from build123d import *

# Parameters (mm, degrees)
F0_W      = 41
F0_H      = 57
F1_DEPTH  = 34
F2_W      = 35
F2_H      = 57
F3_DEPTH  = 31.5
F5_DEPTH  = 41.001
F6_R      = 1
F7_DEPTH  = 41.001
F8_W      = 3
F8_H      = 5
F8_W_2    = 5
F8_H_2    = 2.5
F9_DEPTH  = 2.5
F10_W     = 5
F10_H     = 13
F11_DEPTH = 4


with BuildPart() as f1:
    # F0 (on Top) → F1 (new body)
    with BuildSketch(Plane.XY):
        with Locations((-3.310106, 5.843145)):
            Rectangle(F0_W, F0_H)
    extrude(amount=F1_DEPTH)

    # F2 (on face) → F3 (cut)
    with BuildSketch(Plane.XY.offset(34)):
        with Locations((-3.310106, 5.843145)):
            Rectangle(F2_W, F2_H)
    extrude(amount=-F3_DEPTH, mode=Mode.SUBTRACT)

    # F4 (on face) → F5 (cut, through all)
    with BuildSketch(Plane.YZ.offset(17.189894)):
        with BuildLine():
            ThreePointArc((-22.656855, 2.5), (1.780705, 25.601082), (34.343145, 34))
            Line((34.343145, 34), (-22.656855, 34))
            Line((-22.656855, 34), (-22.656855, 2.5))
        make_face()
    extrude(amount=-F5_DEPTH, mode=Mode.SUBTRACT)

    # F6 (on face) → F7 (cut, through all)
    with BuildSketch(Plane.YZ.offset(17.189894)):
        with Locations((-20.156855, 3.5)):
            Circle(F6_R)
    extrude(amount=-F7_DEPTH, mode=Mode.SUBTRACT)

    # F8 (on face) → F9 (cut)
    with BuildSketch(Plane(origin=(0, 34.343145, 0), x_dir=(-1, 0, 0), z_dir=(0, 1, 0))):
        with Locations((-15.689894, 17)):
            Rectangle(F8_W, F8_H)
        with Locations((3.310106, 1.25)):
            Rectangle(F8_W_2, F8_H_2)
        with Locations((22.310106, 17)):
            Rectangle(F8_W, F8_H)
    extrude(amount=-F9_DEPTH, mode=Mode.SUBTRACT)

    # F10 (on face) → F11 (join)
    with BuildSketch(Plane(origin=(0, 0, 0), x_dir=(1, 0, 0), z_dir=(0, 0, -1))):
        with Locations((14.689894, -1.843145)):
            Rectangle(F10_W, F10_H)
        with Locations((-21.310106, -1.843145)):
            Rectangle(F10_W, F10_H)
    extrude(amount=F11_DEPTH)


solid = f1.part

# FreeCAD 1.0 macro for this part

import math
import FreeCAD as App
import Part
import Sketcher
from FreeCAD import Vector

doc = App.newDocument("Part")
body = doc.addObject("PartDesign::Body", "Body")

# Sketch on XY plane
sketch1 = body.newObject("Sketcher::SketchObject", "Sketch")
sketch1.AttachmentSupport = (doc.getObject("XY_Plane"), [""])
sketch1.MapMode = "FlatFace"
sketch1.addGeometry([
    Part.LineSegment(Vector(-24, 34, 0), Vector(-24, -23, 0)),
    Part.LineSegment(Vector(-24, -23, 0), Vector(17, -23, 0)),
    Part.LineSegment(Vector(17, -23, 0), Vector(17, 34, 0)),
    Part.LineSegment(Vector(17, 34, 0), Vector(-24, 34, 0)),
], False)
sketch1.addConstraint([
    Sketcher.Constraint("Coincident", 0, 2, 1, 1),
    Sketcher.Constraint("Coincident", 1, 2, 2, 1),
    Sketcher.Constraint("Coincident", 2, 2, 3, 1),
    Sketcher.Constraint("Coincident", 3, 2, 0, 1),
    Sketcher.Constraint("Vertical", 0),
    Sketcher.Constraint("Horizontal", 1),
    Sketcher.Constraint("Vertical", 2),
    Sketcher.Constraint("Horizontal", 3),
    Sketcher.Constraint("DistanceX", 1, 1, 1, 2, 41.0),
    Sketcher.Constraint("DistanceY", 0, 2, 0, 1, 57.0),
    Sketcher.Constraint("DistanceX", 0, 2, -1, 1, 23.810106),
    Sketcher.Constraint("DistanceY", 0, 2, -1, 1, 22.656855),
])
pad1 = body.newObject("PartDesign::Pad", "Pad")
pad1.Profile = sketch1
pad1.Length = 34

# Sketch on XY plane
sketch2 = body.newObject("Sketcher::SketchObject", "Sketch001")
sketch2.AttachmentSupport = (doc.getObject("XY_Plane"), [""])
sketch2.MapMode = "FlatFace"
sketch2.AttachmentOffset = App.Placement(Vector(0, 0, 34), App.Rotation())
sketch2.addGeometry([
    Part.LineSegment(Vector(-21, 34, 0), Vector(-21, -23, 0)),
    Part.LineSegment(Vector(-21, -23, 0), Vector(14, -23, 0)),
    Part.LineSegment(Vector(14, -23, 0), Vector(14, 34, 0)),
    Part.LineSegment(Vector(14, 34, 0), Vector(-21, 34, 0)),
], False)
sketch2.addConstraint([
    Sketcher.Constraint("Coincident", 0, 2, 1, 1),
    Sketcher.Constraint("Coincident", 1, 2, 2, 1),
    Sketcher.Constraint("Coincident", 2, 2, 3, 1),
    Sketcher.Constraint("Coincident", 3, 2, 0, 1),
    Sketcher.Constraint("Vertical", 0),
    Sketcher.Constraint("Horizontal", 1),
    Sketcher.Constraint("Vertical", 2),
    Sketcher.Constraint("Horizontal", 3),
    Sketcher.Constraint("DistanceX", 1, 1, 1, 2, 35.0),
    Sketcher.Constraint("DistanceY", 0, 2, 0, 1, 57.0),
    Sketcher.Constraint("DistanceX", 0, 2, -1, 1, 20.810106),
    Sketcher.Constraint("DistanceY", 0, 2, -1, 1, 22.656855),
])
pocket1 = body.newObject("PartDesign::Pocket", "Pocket")
pocket1.Profile = sketch2
pocket1.Length = 31.5

# Sketch on YZ plane
sketch3 = body.newObject("Sketcher::SketchObject", "Sketch002")
sketch3.AttachmentSupport = (doc.getObject("YZ_Plane"), [""])
sketch3.MapMode = "FlatFace"
sketch3.AttachmentOffset = App.Placement(Vector(0, 0, 17.189894), App.Rotation())
sketch3.addGeometry([
    Part.ArcOfCircle(Part.Circle(Vector(34, -33, 0), Vector(0, 0, 1), 67), math.radians(90), math.radians(148)),
    Part.LineSegment(Vector(34, 34, 0), Vector(-23, 34, 0)),
    Part.LineSegment(Vector(-23, 34, 0), Vector(-23, 2, 0)),
], False)
sketch3.addConstraint([
    Sketcher.Constraint("Tangent", 0, 1, 1, 1),
    Sketcher.Constraint("Coincident", 1, 2, 2, 1),
    Sketcher.Constraint("Coincident", 2, 2, 0, 2),
    Sketcher.Constraint("Horizontal", 1),
    Sketcher.Constraint("Vertical", 2),
    Sketcher.Constraint("DistanceX", 1, 2, 1, 1, 57.0),
    Sketcher.Constraint("DistanceY", 2, 2, 2, 1, 31.5),
    Sketcher.Constraint("DistanceY", -1, 1, 0, 1, 34.0),
    Sketcher.Constraint("DistanceX", -1, 1, 0, 3, 34.343145),
])
pocket2 = body.newObject("PartDesign::Pocket", "Pocket001")
pocket2.Profile = sketch3
pocket2.Type = "ThroughAll"

# Sketch on YZ plane
sketch4 = body.newObject("Sketcher::SketchObject", "Sketch003")
sketch4.AttachmentSupport = (doc.getObject("YZ_Plane"), [""])
sketch4.MapMode = "FlatFace"
sketch4.AttachmentOffset = App.Placement(Vector(0, 0, 17.189894), App.Rotation())
sketch4.addGeometry(Part.Circle(Vector(-20.2, 3.5, 0), Vector(0, 0, 1), 1), False)
sketch4.addConstraint([
    Sketcher.Constraint("Diameter", 0, 2.0),
    Sketcher.Constraint("DistanceY", -1, 1, 0, 3, 3.5),
    Sketcher.Constraint("DistanceX", 0, 3, -1, 1, 20.156855),
])
pocket3 = body.newObject("PartDesign::Pocket", "Pocket002")
pocket3.Profile = sketch4
pocket3.Type = "ThroughAll"

# Sketch on XZ plane
sketch5 = body.newObject("Sketcher::SketchObject", "Sketch004")
sketch5.AttachmentSupport = (doc.getObject("XZ_Plane"), [""])
sketch5.MapMode = "FlatFace"
sketch5.AttachmentOffset = App.Placement(Vector(0, 0, -34.343145), App.Rotation())
sketch5.addGeometry([
    Part.LineSegment(Vector(17.2, 19.5, 0), Vector(17.2, 14.5, 0)),  # 0
    Part.LineSegment(Vector(17.2, 14.5, 0), Vector(14.2, 14.5, 0)),  # 1
    Part.LineSegment(Vector(14.2, 14.5, 0), Vector(14.2, 19.5, 0)),  # 2
    Part.LineSegment(Vector(14.2, 19.5, 0), Vector(17.2, 19.5, 0)),  # 3
    Part.LineSegment(Vector(-0.8, 2.5, 0), Vector(-0.8, 0, 0)),  # 4
    Part.LineSegment(Vector(-0.8, 0, 0), Vector(-5.8, 0, 0)),  # 5
    Part.LineSegment(Vector(-5.8, 0, 0), Vector(-5.8, 2.5, 0)),  # 6
    Part.LineSegment(Vector(-5.8, 2.5, 0), Vector(-0.8, 2.5, 0)),  # 7
    Part.LineSegment(Vector(-20.8, 19.5, 0), Vector(-20.8, 14.5, 0)),  # 8
    Part.LineSegment(Vector(-20.8, 14.5, 0), Vector(-23.8, 14.5, 0)),  # 9
    Part.LineSegment(Vector(-23.8, 14.5, 0), Vector(-23.8, 19.5, 0)),  # 10
    Part.LineSegment(Vector(-23.8, 19.5, 0), Vector(-20.8, 19.5, 0)),  # 11
], False)
sketch5.addConstraint([
    Sketcher.Constraint("Coincident", 0, 2, 1, 1),
    Sketcher.Constraint("Coincident", 1, 2, 2, 1),
    Sketcher.Constraint("Coincident", 2, 2, 3, 1),
    Sketcher.Constraint("Coincident", 3, 2, 0, 1),
    Sketcher.Constraint("Coincident", 4, 2, 5, 1),
    Sketcher.Constraint("Coincident", 5, 2, 6, 1),
    Sketcher.Constraint("Coincident", 6, 2, 7, 1),
    Sketcher.Constraint("Coincident", 7, 2, 4, 1),
    Sketcher.Constraint("Coincident", 8, 2, 9, 1),
    Sketcher.Constraint("Coincident", 9, 2, 10, 1),
    Sketcher.Constraint("Coincident", 10, 2, 11, 1),
    Sketcher.Constraint("Coincident", 11, 2, 8, 1),
    Sketcher.Constraint("Vertical", 0),
    Sketcher.Constraint("Horizontal", 1),
    Sketcher.Constraint("Vertical", 2),
    Sketcher.Constraint("Horizontal", 3),
    Sketcher.Constraint("Vertical", 4),
    Sketcher.Constraint("Horizontal", 5),
    Sketcher.Constraint("Vertical", 6),
    Sketcher.Constraint("Horizontal", 7),
    Sketcher.Constraint("Vertical", 8),
    Sketcher.Constraint("Horizontal", 9),
    Sketcher.Constraint("Vertical", 10),
    Sketcher.Constraint("Horizontal", 11),
    Sketcher.Constraint("PointOnObject", 4, 2, -1),
    Sketcher.Constraint("Horizontal", 1, 2, 8, 2),
    Sketcher.Constraint("Horizontal", 3, 2, 10, 2),
    Sketcher.Constraint("Equal", 3, 9),
    Sketcher.Constraint("Equal", 7, 0),
    Sketcher.Constraint("DistanceX", 1, 2, 1, 1, 3.0),
    Sketcher.Constraint("DistanceX", 5, 2, 5, 1, 5.0),
    Sketcher.Constraint("DistanceY", 4, 2, 4, 1, 2.5),
    Sketcher.Constraint("DistanceX", 4, 2, 1, 2, 15.0),
    Sketcher.Constraint("DistanceY", 6, 2, 1, 2, 12.0),
    Sketcher.Constraint("DistanceX", 8, 2, 6, 2, 15.0),
    Sketcher.Constraint("DistanceX", -1, 1, 0, 2, 17.189894),
])
pocket4 = body.newObject("PartDesign::Pocket", "Pocket003")
pocket4.Profile = sketch5
pocket4.Length = 2.5
pocket4.Reversed = True

# Sketch on XY plane
sketch6 = body.newObject("Sketcher::SketchObject", "Sketch005")
sketch6.AttachmentSupport = (doc.getObject("XY_Plane"), [""])
sketch6.MapMode = "FlatFace"
sketch6.addGeometry([
    Part.LineSegment(Vector(12.2, -4.7, 0), Vector(12.2, 8.3, 0)),  # 0
    Part.LineSegment(Vector(12.2, 8.3, 0), Vector(17.2, 8.3, 0)),  # 1
    Part.LineSegment(Vector(17.2, 8.3, 0), Vector(17.2, -4.7, 0)),  # 2
    Part.LineSegment(Vector(17.2, -4.7, 0), Vector(12.2, -4.7, 0)),  # 3
    Part.LineSegment(Vector(-23.8, -4.7, 0), Vector(-23.8, 8.3, 0)),  # 4
    Part.LineSegment(Vector(-23.8, 8.3, 0), Vector(-18.8, 8.3, 0)),  # 5
    Part.LineSegment(Vector(-18.8, 8.3, 0), Vector(-18.8, -4.7, 0)),  # 6
    Part.LineSegment(Vector(-18.8, -4.7, 0), Vector(-23.8, -4.7, 0)),  # 7
], False)
sketch6.addConstraint([
    Sketcher.Constraint("Coincident", 0, 2, 1, 1),
    Sketcher.Constraint("Coincident", 1, 2, 2, 1),
    Sketcher.Constraint("Coincident", 2, 2, 3, 1),
    Sketcher.Constraint("Coincident", 3, 2, 0, 1),
    Sketcher.Constraint("Coincident", 4, 2, 5, 1),
    Sketcher.Constraint("Coincident", 5, 2, 6, 1),
    Sketcher.Constraint("Coincident", 6, 2, 7, 1),
    Sketcher.Constraint("Coincident", 7, 2, 4, 1),
    Sketcher.Constraint("Vertical", 0),
    Sketcher.Constraint("Horizontal", 1),
    Sketcher.Constraint("Vertical", 2),
    Sketcher.Constraint("Horizontal", 3),
    Sketcher.Constraint("Vertical", 4),
    Sketcher.Constraint("Horizontal", 5),
    Sketcher.Constraint("Vertical", 6),
    Sketcher.Constraint("Horizontal", 7),
    Sketcher.Constraint("Horizontal", 1, 2, 4, 2),
    Sketcher.Constraint("Horizontal", 3, 2, 6, 2),
    Sketcher.Constraint("Equal", 3, 5),
    Sketcher.Constraint("DistanceX", 1, 1, 1, 2, 5.0),
    Sketcher.Constraint("DistanceY", 0, 1, 0, 2, 13.0),
    Sketcher.Constraint("DistanceX", 4, 2, 0, 2, 36.0),
    Sketcher.Constraint("DistanceX", -1, 1, 0, 2, 12.189894),
    Sketcher.Constraint("DistanceY", -1, 1, 0, 2, 8.343145),
])
pad2 = body.newObject("PartDesign::Pad", "Pad001")
pad2.Profile = sketch6
pad2.Length = 4
pad2.Reversed = True

doc.recompute()
